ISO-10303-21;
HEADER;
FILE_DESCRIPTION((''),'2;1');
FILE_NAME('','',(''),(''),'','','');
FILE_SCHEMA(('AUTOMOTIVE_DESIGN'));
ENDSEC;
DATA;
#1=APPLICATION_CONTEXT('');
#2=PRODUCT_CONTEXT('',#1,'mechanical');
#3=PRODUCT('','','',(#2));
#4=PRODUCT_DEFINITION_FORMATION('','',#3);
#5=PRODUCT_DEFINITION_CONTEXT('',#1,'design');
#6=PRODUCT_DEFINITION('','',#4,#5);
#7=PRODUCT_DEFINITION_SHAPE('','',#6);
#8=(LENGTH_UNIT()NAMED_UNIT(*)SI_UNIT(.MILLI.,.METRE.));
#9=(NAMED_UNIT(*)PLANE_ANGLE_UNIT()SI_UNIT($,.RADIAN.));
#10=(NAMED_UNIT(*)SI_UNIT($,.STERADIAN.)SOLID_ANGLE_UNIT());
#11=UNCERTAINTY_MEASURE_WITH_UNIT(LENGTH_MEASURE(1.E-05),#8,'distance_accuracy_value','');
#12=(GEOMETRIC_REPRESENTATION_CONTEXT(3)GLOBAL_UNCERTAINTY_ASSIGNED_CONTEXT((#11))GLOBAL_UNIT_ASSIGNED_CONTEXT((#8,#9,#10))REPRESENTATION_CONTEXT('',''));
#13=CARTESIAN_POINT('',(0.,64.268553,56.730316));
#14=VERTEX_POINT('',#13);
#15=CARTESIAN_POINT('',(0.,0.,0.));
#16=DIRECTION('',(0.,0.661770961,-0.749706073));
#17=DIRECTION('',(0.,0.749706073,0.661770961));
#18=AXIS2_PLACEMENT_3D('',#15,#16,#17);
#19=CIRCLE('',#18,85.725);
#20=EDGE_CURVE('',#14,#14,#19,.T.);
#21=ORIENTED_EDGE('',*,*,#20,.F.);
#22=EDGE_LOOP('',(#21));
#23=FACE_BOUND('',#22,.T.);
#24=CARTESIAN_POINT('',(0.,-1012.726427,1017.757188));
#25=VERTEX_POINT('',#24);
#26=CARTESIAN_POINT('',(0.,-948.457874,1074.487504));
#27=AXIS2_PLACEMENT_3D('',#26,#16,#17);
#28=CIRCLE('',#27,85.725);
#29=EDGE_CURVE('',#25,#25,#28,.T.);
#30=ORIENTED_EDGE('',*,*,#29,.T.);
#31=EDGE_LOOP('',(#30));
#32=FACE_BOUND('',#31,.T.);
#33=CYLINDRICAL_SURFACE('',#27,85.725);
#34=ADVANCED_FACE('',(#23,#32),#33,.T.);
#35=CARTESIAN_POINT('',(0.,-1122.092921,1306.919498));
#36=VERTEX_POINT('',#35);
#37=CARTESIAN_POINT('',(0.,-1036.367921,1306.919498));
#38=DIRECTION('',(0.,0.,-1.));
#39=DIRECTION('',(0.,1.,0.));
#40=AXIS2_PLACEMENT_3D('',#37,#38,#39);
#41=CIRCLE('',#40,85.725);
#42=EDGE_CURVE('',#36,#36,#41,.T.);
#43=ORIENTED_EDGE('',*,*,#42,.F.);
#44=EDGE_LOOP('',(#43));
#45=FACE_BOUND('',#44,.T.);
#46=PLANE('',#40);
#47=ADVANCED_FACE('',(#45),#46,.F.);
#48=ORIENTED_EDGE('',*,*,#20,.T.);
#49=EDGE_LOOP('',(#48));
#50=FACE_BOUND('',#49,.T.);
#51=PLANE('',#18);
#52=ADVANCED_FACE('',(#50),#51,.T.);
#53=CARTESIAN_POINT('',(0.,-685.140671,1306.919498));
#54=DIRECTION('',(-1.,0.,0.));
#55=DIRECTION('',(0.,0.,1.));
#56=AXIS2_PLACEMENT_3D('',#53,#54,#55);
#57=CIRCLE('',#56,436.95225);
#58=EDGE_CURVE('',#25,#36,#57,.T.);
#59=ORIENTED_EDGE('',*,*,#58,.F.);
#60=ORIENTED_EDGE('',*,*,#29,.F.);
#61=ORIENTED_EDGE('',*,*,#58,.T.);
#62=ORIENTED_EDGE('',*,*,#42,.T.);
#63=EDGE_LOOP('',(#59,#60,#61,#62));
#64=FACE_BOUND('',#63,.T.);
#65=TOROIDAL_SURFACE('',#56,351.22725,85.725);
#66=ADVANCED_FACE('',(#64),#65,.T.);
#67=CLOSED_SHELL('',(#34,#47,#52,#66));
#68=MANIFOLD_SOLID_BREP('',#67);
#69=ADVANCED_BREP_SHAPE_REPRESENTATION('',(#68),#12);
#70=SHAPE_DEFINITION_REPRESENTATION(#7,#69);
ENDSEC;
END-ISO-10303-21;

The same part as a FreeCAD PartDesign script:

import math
import FreeCAD as App
import Part
import Sketcher
Q = App.Units.Quantity

doc = App.newDocument("Part")
params = doc.addObject("Spreadsheet::Sheet", "Params")
for row, (alias, value) in enumerate([
    ("sketch1_diameter", "6.75 in"),
], start=1):
    params.set(f"A{row}", alias)
    params.set(f"B{row}", "=" + value)
    params.setAlias(f"B{row}", alias)

body = doc.addObject("PartDesign::Body", "Body")

# Sketch on an angled plane
sketch1 = body.newObject("Sketcher::SketchObject", "Sketch")
sketch1.Placement = App.Placement(App.Vector(0, 0, 0), App.Rotation(App.Vector(-1, 0, 0), App.Vector(0, 0.749706073, 0.661770961), App.Vector(0, 0.661770961, -0.749706073), "ZXY"))
sketch1.addGeometry(Part.Circle(App.Vector(0, 0, 0), App.Vector(0, 0, 1), 86), False)
sketch1.addConstraint([
    Sketcher.Constraint("Coincident", 0, 3, -1, 1),
    Sketcher.Constraint("Diameter", 0, Q("6.75 in")),
])
sketch1.setExpression("Constraints[1]", "Params.sketch1_diameter")

# Sketch on YZ plane
sketch2 = body.newObject("Sketcher::SketchObject", "Sketch001")
sketch2.AttachmentSupport = (doc.getObject("YZ_Plane"), [""])
sketch2.MapMode = "FlatFace"
sketch2.addGeometry([
    Part.LineSegment(App.Vector(0, 0, 0), App.Vector(-948, 1074, 0)),
    Part.ArcOfCircle(Part.Circle(App.Vector(-685, 1307, 0), App.Vector(0, 0, 1), 351), math.radians(-180), math.radians(-139)),
], False)
sketch2.addConstraint([
    Sketcher.Constraint("Tangent", 0, 2, 1, 2),
    Sketcher.Constraint("Coincident", 0, 1, -1, 1),
    Sketcher.Constraint("Radius", 1, 351.22725),
    Sketcher.Constraint("DistanceY", -1, 1, 1, 3, 1306.919498),
    Sketcher.Constraint("DistanceY", -1, 1, 1, 1, 1306.919498),
    Sketcher.Constraint("DistanceX", 1, 3, -1, 1, 685.140671),
])
doc.recompute()

additivepipe = body.newObject("PartDesign::AdditivePipe", "AdditivePipe")
additivepipe.Profile = sketch1
additivepipe.Spine = (sketch2, ["Edge1", "Edge2"])

doc.recompute()
